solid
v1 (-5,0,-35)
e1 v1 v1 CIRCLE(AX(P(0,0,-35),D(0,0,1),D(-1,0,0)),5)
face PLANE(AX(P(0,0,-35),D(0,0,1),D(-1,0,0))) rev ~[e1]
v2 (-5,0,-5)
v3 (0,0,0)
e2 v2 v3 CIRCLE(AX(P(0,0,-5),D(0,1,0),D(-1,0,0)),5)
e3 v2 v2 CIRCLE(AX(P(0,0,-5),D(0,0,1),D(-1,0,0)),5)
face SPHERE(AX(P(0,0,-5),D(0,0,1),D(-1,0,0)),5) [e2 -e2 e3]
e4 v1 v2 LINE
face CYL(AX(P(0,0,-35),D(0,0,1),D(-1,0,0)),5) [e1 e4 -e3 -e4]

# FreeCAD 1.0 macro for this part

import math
import FreeCAD as App
import Part
import Sketcher

V = App.Vector
Q = App.Units.Quantity

doc = App.newDocument("Part")
body = doc.addObject("PartDesign::Body", "Body")

# Sketch on XZ plane
sketch1 = doc.addObject("Sketcher::SketchObject", "Sketch")
body.addObject(sketch1)
sketch1.AttachmentSupport = (doc.XZ_Plane, [""])
sketch1.MapMode = "FlatFace"
sketch1.addGeometry([
    Part.LineSegment(V(-5, -35, 0), V(-5, -5, 0)),
    Part.ArcOfCircle(Part.Circle(V(0, -5, 0), V(0, 0, 1), 5), math.radians(90), math.radians(180)),
    Part.LineSegment(V(0, 0, 0), V(0, -35, 0)),
    Part.LineSegment(V(0, -35, 0), V(-5, -35, 0)),
], False)
sketch1.addConstraint([
    Sketcher.Constraint("Tangent", 0, 2, 1, 2),
    Sketcher.Constraint("Coincident", 1, 1, 2, 1),
    Sketcher.Constraint("Coincident", 2, 2, 3, 1),
    Sketcher.Constraint("Coincident", 3, 2, 0, 1),
    Sketcher.Constraint("Vertical", 0),
    Sketcher.Constraint("Vertical", 2),
    Sketcher.Constraint("Horizontal", 3),
    Sketcher.Constraint("Coincident", 1, 1, -1, 1),
    Sketcher.Constraint("PointOnObject", 1, 3, -2),
    Sketcher.Constraint("Radius", 1, Q("5 mm")),
    Sketcher.Constraint("DistanceY", 0, 1, 0, 2, Q("30 mm")),
])
revolution = doc.addObject("PartDesign::Revolution", "Revolution")
body.addObject(revolution)
revolution.Profile = sketch1
revolution.ReferenceAxis = (sketch1, ["V_Axis"])
revolution.Angle = 360

doc.recompute()
